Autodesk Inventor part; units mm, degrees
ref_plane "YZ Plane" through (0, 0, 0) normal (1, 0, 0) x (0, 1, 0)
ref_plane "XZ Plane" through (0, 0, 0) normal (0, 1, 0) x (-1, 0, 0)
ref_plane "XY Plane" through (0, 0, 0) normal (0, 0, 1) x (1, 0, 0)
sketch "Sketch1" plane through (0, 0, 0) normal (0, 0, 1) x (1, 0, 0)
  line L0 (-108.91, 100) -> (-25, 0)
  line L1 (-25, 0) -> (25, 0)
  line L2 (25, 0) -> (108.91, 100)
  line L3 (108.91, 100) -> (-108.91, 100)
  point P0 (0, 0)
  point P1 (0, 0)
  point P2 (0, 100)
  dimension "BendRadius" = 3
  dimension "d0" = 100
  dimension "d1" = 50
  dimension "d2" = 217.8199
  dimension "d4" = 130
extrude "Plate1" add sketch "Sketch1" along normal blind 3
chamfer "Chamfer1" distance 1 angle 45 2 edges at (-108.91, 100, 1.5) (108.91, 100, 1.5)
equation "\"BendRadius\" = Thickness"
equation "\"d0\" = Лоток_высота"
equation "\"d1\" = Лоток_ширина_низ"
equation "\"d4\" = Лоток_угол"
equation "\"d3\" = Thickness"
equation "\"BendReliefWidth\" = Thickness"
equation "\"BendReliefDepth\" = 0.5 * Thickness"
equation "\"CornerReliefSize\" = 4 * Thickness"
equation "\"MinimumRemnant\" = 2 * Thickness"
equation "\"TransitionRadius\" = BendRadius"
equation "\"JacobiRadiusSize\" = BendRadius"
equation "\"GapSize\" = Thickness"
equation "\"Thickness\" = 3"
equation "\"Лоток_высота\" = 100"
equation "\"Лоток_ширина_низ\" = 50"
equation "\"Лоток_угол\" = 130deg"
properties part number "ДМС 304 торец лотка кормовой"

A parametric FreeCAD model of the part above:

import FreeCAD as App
import Part
import Sketcher
from FreeCAD import Vector
Q = App.Units.Quantity


def edges_at(feature, points):
    """Names of the edges that pass closest to the given points."""
    edges = feature.Shape.Edges
    near = lambda p: min(range(len(edges)), key=lambda i: edges[i].distToShape(Part.Vertex(*p))[0])
    return sorted({f"Edge{near(p) + 1}" for p in points})


def add_polygon(sketch, points):
    """Adds a closed chain of lines whose ends are joined by coincident constraints."""
    first, n = sketch.GeometryCount, len(points)
    for a, b in zip(points, points[1:] + points[:1]):
        sketch.addGeometry(Part.LineSegment(App.Vector(*a, 0), App.Vector(*b, 0)), False)
    for i in range(n):
        sketch.addConstraint(Sketcher.Constraint("Coincident", first + i, 2, first + (i + 1) % n, 1))

doc = App.newDocument("Part")
body = doc.addObject("PartDesign::Body", "Body")

# Sketch on XY plane
sketch1 = body.newObject("Sketcher::SketchObject", "Sketch")
sketch1.AttachmentSupport = (doc.getObject("XY_Plane"), [""])
sketch1.MapMode = "FlatFace"
add_polygon(sketch1, [(109, 100), (-109, 100), (-25, 0), (25, 0)])  # lines 0-3
sketch1.addConstraint(Sketcher.Constraint("Horizontal", 0))
sketch1.addConstraint(Sketcher.Constraint("Horizontal", 2))
sketch1.addConstraint(Sketcher.Constraint("Symmetric", 1, 2, 2, 2, -1, 1))
sketch1.addConstraint(Sketcher.Constraint("Equal", 1, 3))
sketch1.addConstraint(Sketcher.Constraint("DistanceX", 2, 1, 2, 2, Q("50 mm")))
sketch1.addConstraint(Sketcher.Constraint("Angle", 1, Q("-50 deg")))
sketch1.addConstraint(Sketcher.Constraint("DistanceY", -1, 1, 0, 2, Q("100 mm")))
pad1 = body.newObject("PartDesign::Pad", "Pad")
pad1.Profile = sketch1
pad1.Length = 3
doc.recompute()

chamfer = body.newObject("PartDesign::Chamfer", "Chamfer")
chamfer.Base = (pad1, edges_at(pad1, [(-108.91, 100, 1.5), (108.91, 100, 1.5)]))
chamfer.Size = 1

doc.recompute()
